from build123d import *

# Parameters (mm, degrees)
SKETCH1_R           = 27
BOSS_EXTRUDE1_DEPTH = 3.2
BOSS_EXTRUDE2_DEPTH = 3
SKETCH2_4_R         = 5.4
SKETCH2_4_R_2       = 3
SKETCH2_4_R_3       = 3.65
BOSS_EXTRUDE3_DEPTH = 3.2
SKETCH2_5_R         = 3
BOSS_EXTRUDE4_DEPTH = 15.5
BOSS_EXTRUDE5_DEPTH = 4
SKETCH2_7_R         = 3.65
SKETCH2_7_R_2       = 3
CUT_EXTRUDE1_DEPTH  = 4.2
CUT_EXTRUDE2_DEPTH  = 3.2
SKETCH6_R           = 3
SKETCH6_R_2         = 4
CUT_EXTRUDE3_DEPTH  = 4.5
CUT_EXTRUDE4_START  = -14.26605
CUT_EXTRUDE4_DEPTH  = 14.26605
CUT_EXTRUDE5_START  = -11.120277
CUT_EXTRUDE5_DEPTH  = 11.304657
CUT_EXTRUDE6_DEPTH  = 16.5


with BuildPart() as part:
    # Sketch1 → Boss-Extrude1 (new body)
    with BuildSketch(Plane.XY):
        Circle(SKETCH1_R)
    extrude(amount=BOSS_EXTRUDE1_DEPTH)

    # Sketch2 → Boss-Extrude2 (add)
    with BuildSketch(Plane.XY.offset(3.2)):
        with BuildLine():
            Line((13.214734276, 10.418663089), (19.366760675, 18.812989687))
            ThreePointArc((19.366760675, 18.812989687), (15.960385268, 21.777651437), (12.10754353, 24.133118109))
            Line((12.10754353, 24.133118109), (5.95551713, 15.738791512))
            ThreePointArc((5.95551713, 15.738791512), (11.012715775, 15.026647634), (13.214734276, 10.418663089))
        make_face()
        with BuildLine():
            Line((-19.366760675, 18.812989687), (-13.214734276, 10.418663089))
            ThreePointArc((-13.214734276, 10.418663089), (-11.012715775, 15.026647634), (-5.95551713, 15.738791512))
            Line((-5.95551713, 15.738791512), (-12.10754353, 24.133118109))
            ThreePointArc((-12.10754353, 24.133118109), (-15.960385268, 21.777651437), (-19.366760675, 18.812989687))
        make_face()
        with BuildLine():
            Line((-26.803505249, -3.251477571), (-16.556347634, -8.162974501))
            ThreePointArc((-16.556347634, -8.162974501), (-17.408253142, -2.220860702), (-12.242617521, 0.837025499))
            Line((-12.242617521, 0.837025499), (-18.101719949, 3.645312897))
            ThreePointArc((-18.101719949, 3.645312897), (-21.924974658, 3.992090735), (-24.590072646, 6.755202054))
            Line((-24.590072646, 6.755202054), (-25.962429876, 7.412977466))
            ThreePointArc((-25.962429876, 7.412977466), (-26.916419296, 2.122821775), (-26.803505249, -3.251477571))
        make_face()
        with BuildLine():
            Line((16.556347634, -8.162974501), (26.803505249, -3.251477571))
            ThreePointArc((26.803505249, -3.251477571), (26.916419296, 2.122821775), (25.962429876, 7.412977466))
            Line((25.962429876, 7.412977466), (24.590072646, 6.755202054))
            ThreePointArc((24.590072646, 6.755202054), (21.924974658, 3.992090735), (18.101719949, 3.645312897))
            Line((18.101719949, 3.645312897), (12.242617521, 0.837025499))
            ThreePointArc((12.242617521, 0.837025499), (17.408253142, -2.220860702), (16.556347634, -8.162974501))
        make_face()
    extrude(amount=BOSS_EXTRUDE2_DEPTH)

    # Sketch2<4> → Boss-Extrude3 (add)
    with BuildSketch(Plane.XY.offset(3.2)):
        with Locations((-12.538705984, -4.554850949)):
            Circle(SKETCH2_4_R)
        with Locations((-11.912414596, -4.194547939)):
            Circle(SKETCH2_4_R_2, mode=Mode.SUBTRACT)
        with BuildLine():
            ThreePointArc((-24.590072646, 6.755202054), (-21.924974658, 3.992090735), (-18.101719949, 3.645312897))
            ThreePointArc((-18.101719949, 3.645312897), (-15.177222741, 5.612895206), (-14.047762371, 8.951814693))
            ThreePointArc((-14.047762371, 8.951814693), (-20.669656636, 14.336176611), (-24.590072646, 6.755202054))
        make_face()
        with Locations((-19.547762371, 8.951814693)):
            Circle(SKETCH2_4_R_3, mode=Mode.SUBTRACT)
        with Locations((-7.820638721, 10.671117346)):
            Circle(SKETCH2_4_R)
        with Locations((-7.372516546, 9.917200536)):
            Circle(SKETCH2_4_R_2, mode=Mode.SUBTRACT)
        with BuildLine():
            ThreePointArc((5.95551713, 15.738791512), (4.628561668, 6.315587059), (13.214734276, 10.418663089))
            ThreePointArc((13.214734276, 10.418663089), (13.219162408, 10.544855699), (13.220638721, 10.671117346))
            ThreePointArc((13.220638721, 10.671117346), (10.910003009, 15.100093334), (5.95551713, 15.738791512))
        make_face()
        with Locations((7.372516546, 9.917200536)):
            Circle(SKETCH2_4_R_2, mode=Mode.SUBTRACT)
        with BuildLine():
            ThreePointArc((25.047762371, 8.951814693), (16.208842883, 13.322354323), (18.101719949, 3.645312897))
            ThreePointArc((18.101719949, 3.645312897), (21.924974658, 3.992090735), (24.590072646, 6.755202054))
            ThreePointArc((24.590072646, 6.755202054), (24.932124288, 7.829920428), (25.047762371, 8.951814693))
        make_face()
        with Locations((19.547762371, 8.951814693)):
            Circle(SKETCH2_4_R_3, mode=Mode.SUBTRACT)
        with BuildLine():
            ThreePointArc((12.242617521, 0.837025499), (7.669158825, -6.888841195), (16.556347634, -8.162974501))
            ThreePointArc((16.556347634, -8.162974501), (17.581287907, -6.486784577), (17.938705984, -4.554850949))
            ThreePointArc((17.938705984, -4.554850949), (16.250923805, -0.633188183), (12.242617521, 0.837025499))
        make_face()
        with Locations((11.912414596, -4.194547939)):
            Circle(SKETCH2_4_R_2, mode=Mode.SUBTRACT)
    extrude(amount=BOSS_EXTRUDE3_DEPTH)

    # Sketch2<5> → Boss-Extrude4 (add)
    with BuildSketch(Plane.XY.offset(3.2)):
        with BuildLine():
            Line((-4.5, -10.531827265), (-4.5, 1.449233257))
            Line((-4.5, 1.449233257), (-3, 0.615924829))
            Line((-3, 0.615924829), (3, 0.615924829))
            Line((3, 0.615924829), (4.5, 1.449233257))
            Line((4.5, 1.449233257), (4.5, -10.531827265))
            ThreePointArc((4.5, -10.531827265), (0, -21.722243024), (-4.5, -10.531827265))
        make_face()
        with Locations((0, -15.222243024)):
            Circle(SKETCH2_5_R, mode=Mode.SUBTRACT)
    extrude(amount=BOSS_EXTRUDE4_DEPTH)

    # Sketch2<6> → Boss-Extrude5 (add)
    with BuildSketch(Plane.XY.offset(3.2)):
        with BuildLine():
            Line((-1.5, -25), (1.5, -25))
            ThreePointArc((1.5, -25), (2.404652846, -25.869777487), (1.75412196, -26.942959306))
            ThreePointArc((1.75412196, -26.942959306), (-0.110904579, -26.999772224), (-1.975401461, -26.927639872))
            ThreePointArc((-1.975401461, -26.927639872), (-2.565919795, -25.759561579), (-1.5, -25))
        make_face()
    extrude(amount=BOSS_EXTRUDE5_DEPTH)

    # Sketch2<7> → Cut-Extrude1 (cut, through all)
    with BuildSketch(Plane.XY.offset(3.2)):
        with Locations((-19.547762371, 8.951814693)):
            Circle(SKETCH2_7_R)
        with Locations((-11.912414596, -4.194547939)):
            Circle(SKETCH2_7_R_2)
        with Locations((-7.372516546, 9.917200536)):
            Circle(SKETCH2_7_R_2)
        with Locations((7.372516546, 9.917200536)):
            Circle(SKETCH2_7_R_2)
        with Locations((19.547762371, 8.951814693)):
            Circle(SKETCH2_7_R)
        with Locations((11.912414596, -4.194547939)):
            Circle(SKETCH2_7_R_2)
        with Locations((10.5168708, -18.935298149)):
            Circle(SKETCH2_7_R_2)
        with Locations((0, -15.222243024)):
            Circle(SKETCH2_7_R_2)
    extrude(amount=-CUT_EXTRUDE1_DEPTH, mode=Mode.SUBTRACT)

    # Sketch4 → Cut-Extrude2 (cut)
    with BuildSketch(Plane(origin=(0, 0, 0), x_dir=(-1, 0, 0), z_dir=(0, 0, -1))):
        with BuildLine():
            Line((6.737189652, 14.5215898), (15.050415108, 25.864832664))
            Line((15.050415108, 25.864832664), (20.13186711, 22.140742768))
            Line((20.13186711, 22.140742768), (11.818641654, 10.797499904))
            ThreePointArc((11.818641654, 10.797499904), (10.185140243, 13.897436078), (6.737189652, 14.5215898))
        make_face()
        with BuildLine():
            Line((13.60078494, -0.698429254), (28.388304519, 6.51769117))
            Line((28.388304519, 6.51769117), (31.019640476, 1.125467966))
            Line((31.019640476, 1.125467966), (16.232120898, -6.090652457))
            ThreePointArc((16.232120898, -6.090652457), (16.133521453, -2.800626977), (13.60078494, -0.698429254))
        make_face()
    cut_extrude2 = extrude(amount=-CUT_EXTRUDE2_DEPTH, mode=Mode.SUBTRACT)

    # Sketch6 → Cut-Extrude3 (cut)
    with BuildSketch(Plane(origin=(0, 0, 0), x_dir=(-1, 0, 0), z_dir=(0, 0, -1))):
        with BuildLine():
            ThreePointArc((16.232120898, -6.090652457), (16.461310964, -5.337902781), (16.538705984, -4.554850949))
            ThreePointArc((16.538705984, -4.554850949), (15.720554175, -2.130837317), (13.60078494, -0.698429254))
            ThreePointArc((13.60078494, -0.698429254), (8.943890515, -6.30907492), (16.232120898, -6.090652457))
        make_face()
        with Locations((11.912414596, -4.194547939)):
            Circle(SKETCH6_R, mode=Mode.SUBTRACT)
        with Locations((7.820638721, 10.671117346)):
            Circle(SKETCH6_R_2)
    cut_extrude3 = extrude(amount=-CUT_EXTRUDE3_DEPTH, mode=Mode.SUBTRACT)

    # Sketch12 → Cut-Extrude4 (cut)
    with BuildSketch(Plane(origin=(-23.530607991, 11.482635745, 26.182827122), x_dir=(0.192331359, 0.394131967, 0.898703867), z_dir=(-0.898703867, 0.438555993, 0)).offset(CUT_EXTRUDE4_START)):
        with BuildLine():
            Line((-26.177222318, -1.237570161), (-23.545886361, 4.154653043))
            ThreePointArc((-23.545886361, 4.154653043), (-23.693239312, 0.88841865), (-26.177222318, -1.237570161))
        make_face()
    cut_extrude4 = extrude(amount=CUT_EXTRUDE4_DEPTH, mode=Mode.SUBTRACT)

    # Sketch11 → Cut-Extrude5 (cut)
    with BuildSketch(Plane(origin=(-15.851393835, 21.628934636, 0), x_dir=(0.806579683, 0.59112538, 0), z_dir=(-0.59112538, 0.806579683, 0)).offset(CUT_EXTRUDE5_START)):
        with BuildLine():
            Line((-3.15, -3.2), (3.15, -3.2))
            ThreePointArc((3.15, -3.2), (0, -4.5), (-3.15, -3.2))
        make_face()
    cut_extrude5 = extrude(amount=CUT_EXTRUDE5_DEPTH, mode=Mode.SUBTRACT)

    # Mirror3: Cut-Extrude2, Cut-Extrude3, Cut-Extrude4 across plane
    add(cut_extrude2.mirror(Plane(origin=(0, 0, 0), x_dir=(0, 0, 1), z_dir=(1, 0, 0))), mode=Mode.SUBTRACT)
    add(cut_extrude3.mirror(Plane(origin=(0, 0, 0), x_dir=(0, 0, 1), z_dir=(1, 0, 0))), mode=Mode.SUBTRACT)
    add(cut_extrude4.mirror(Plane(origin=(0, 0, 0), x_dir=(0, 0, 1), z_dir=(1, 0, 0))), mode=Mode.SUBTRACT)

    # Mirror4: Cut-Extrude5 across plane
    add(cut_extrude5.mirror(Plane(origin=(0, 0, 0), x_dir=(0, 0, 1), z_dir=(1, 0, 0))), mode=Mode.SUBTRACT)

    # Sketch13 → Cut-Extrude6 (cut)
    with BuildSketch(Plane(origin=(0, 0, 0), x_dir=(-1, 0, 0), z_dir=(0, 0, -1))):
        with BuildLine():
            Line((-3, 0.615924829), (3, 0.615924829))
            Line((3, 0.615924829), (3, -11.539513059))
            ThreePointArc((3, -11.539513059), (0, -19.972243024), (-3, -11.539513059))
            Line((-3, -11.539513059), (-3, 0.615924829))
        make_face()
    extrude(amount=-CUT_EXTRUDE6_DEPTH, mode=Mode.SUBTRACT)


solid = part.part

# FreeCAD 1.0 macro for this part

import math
import FreeCAD as App
import Part
import Sketcher
Q = App.Units.Quantity

doc = App.newDocument("Part")
body = doc.addObject("PartDesign::Body", "Body")

sketch1 = body.newObject("Sketcher::SketchObject", "Sketch")
sketch1.AttachmentSupport = (doc.getObject("XY_Plane"), [""])
sketch1.MapMode = "FlatFace"
sketch1.addGeometry(Part.Circle(App.Vector(0, 0, 0), App.Vector(0, 0, 1), 27), False)
sketch1.addConstraint(Sketcher.Constraint("Coincident", 0, 3, -1, 1))
sketch1.addConstraint(Sketcher.Constraint("Diameter", 0, Q("54 mm")))
pad1 = body.newObject("PartDesign::Pad", "Pad")
pad1.Profile = sketch1
pad1.Length = 3.2

sketch2 = body.newObject("Sketcher::SketchObject", "Sketch001")
sketch2.AttachmentSupport = (doc.getObject("XY_Plane"), [""])
sketch2.MapMode = "FlatFace"
sketch2.AttachmentOffset = App.Placement(App.Vector(0, 0, 3.2), App.Rotation())
sketch2.addGeometry(Part.LineSegment(App.Vector(13.2, 10.4, 0), App.Vector(19.4, 18.8, 0)), False)
sketch2.addGeometry(Part.ArcOfCircle(Part.Circle(App.Vector(0, 0, 0), App.Vector(0, 0, 1), 27), math.radians(44.17), math.radians(63.36)), False)
sketch2.addGeometry(Part.LineSegment(App.Vector(12.1, 24.1, 0), App.Vector(6, 15.7, 0)), False)
sketch2.addGeometry(Part.ArcOfCircle(Part.Circle(App.Vector(7.8, 10.7, 0), App.Vector(0, 0, 1), 5.4), math.radians(-3), math.radians(110)), False)
sketch2.addGeometry(Part.LineSegment(App.Vector(-19.4, 18.8, 0), App.Vector(-13.2, 10.4, 0)), False)
sketch2.addGeometry(Part.ArcOfCircle(Part.Circle(App.Vector(-7.8, 10.7, 0), App.Vector(0, 0, 1), 5.4), math.radians(70), math.radians(183)), False)
sketch2.addGeometry(Part.LineSegment(App.Vector(-6, 15.7, 0), App.Vector(-12.1, 24.1, 0)), False)
sketch2.addGeometry(Part.ArcOfCircle(Part.Circle(App.Vector(0, 0, 0), App.Vector(0, 0, 1), 27), math.radians(116.64), math.radians(135.83)), False)
sketch2.addGeometry(Part.LineSegment(App.Vector(-26.8, -3.3, 0), App.Vector(-16.6, -8.2, 0)), False)
sketch2.addGeometry(Part.ArcOfCircle(Part.Circle(App.Vector(-12.5, -4.6, 0), App.Vector(0, 0, 1), 5.4), math.radians(87), math.radians(222)), False)
sketch2.addGeometry(Part.LineSegment(App.Vector(-12.2, 0.8, 0), App.Vector(-18.1, 3.6, 0)), False)
sketch2.addGeometry(Part.ArcOfCircle(Part.Circle(App.Vector(-19.5, 9, 0), App.Vector(0, 0, 1), 5.5), math.radians(-156), math.radians(-75)), False)
sketch2.addGeometry(Part.LineSegment(App.Vector(-24.6, 6.8, 0), App.Vector(-26, 7.4, 0)), False)
sketch2.addGeometry(Part.ArcOfCircle(Part.Circle(App.Vector(0, 0, 0), App.Vector(0, 0, 1), 27), math.radians(164), math.radians(187)), False)
sketch2.addGeometry(Part.LineSegment(App.Vector(16.6, -8.2, 0), App.Vector(26.8, -3.3, 0)), False)
sketch2.addGeometry(Part.ArcOfCircle(Part.Circle(App.Vector(0, 0, 0), App.Vector(0, 0, 1), 27), math.radians(-7), math.radians(16)), False)
sketch2.addGeometry(Part.LineSegment(App.Vector(26, 7.4, 0), App.Vector(24.6, 6.8, 0)), False)
sketch2.addGeometry(Part.ArcOfCircle(Part.Circle(App.Vector(19.5, 9, 0), App.Vector(0, 0, 1), 5.5), math.radians(-105), math.radians(-24)), False)
sketch2.addGeometry(Part.LineSegment(App.Vector(18.1, 3.6, 0), App.Vector(12.2, 0.8, 0)), False)
sketch2.addGeometry(Part.ArcOfCircle(Part.Circle(App.Vector(12.5, -4.6, 0), App.Vector(0, 0, 1), 5.4), math.radians(-42), math.radians(93)), False)
sketch2.addConstraint(Sketcher.Constraint("Coincident", 0, 2, 1, 1))
sketch2.addConstraint(Sketcher.Constraint("Coincident", 1, 2, 2, 1))
sketch2.addConstraint(Sketcher.Constraint("Coincident", 2, 2, 3, 2))
sketch2.addConstraint(Sketcher.Constraint("Coincident", 3, 1, 0, 1))
sketch2.addConstraint(Sketcher.Constraint("Coincident", 4, 2, 5, 2))
sketch2.addConstraint(Sketcher.Constraint("Coincident", 5, 1, 6, 1))
sketch2.addConstraint(Sketcher.Constraint("Coincident", 6, 2, 7, 1))
sketch2.addConstraint(Sketcher.Constraint("Coincident", 7, 2, 4, 1))
sketch2.addConstraint(Sketcher.Constraint("Coincident", 8, 2, 9, 2))
sketch2.addConstraint(Sketcher.Constraint("Coincident", 9, 1, 10, 1))
sketch2.addConstraint(Sketcher.Constraint("Coincident", 10, 2, 11, 2))
sketch2.addConstraint(Sketcher.Constraint("Coincident", 11, 1, 12, 1))
sketch2.addConstraint(Sketcher.Constraint("Coincident", 12, 2, 13, 1))
sketch2.addConstraint(Sketcher.Constraint("Coincident", 13, 2, 8, 1))
sketch2.addConstraint(Sketcher.Constraint("Coincident", 14, 2, 15, 1))
sketch2.addConstraint(Sketcher.Constraint("Coincident", 15, 2, 16, 1))
sketch2.addConstraint(Sketcher.Constraint("Coincident", 16, 2, 17, 2))
sketch2.addConstraint(Sketcher.Constraint("Coincident", 17, 1, 18, 1))
sketch2.addConstraint(Sketcher.Constraint("Coincident", 18, 2, 19, 2))
sketch2.addConstraint(Sketcher.Constraint("Coincident", 19, 1, 14, 1))
sketch2.addConstraint(Sketcher.Constraint("Coincident", 1, 3, -1, 1))
sketch2.addConstraint(Sketcher.Constraint("Coincident", 7, 3, -1, 1))
sketch2.addConstraint(Sketcher.Constraint("Coincident", 13, 3, -1, 1))
sketch2.addConstraint(Sketcher.Constraint("Coincident", 15, 3, -1, 1))
sketch2.addConstraint(Sketcher.Constraint("Equal", 3, 5))
sketch2.addConstraint(Sketcher.Constraint("Equal", 1, 7))
sketch2.addConstraint(Sketcher.Constraint("Equal", 5, 9))
sketch2.addConstraint(Sketcher.Constraint("Equal", 7, 13))
sketch2.addConstraint(Sketcher.Constraint("Equal", 13, 15))
sketch2.addConstraint(Sketcher.Constraint("Equal", 11, 17))
sketch2.addConstraint(Sketcher.Constraint("Equal", 9, 19))
sketch2.addConstraint(Sketcher.Constraint("Symmetric", 3, 3, 5, 3, -2))
sketch2.addConstraint(Sketcher.Constraint("Symmetric", 11, 3, 17, 3, -2))
sketch2.addConstraint(Sketcher.Constraint("Symmetric", 9, 3, 19, 3, -2))
sketch2.addConstraint(Sketcher.Constraint("Parallel", 0, 2))
sketch2.addConstraint(Sketcher.Constraint("Parallel", 4, 6))
sketch2.addConstraint(Sketcher.Constraint("Parallel", 8, 10))
sketch2.addConstraint(Sketcher.Constraint("Parallel", 10, 12))
sketch2.addConstraint(Sketcher.Constraint("Parallel", 14, 16))
sketch2.addConstraint(Sketcher.Constraint("Parallel", 16, 18))
sketch2.addConstraint(Sketcher.Constraint("Horizontal", 3, 1, 4, 2))
sketch2.addConstraint(Sketcher.Constraint("Horizontal", 2, 2, 5, 1))
sketch2.addConstraint(Sketcher.Constraint("Horizontal", 1, 2, 6, 2))
sketch2.addConstraint(Sketcher.Constraint("Horizontal", 13, 2, 14, 2))
sketch2.addConstraint(Sketcher.Constraint("Horizontal", 12, 2, 15, 2))
sketch2.addConstraint(Sketcher.Constraint("Horizontal", 11, 1, 16, 2))
sketch2.addConstraint(Sketcher.Constraint("Horizontal", 10, 2, 17, 1))
sketch2.addConstraint(Sketcher.Constraint("Equal", 0, 2))
sketch2.addConstraint(Sketcher.Constraint("Radius", 1, Q("27 mm")))
sketch2.addConstraint(Sketcher.Constraint("Radius", 3, Q("5.4 mm")))
sketch2.addConstraint(Sketcher.Constraint("Radius", 11, Q("5.5 mm")))
sketch2.addConstraint(Sketcher.Constraint("DistanceY", 8, 2, 9, 1, Q("9 mm")))
sketch2.addConstraint(Sketcher.Constraint("DistanceX", 0, 2, 17, 3, Q("0.181002 mm")))
sketch2.addConstraint(Sketcher.Constraint("DistanceY", 3, 3, 1, 2, Q("13.462001 mm")))
sketch2.addConstraint(Sketcher.Constraint("DistanceX", 11, 3, 3, 3, Q("27.368401 mm")))
sketch2.addConstraint(Sketcher.Constraint("DistanceY", 2, 2, 0, 2, Q("3.074198 mm")))
sketch2.addConstraint(Sketcher.Constraint("DistanceY", 10, 2, 11, 3, Q("5.306502 mm")))
sketch2.addConstraint(Sketcher.Constraint("DistanceX", 19, 3, 14, 2, Q("14.264799 mm")))
sketch2.addConstraint(Sketcher.Constraint("Distance", 10, Q("6.49735 mm")))
sketch2.addConstraint(Sketcher.Constraint("Distance", 12, Q("1.521852 mm")))
sketch2.addConstraint(Sketcher.Constraint("DistanceX", -1, 1, 3, 3, Q("7.820639 mm")))
sketch2.addConstraint(Sketcher.Constraint("DistanceY", 9, 3, -1, 1, Q("4.554851 mm")))
sketch2.addConstraint(Sketcher.Constraint("DistanceX", 12, 2, -1, 1, Q("25.96243 mm")))
pad2 = body.newObject("PartDesign::Pad", "Pad001")
pad2.Profile = sketch2
pad2.Length = 3

sketch3 = body.newObject("Sketcher::SketchObject", "Sketch002")
sketch3.AttachmentSupport = (doc.getObject("XY_Plane"), [""])
sketch3.MapMode = "FlatFace"
sketch3.AttachmentOffset = App.Placement(App.Vector(0, 0, 3.2), App.Rotation())
sketch3.addGeometry(Part.Circle(App.Vector(-12.54, -4.55, 0), App.Vector(0, 0, 1), 5.4), False)
sketch3.addGeometry(Part.Circle(App.Vector(-11.91, -4.19, 0), App.Vector(0, 0, 1), 3), False)
sketch3.addGeometry(Part.ArcOfCircle(Part.Circle(App.Vector(-19.55, 8.95, 0), App.Vector(0, 0, 1), 5.5), math.radians(-156), math.radians(-75)), False)
sketch3.addGeometry(Part.ArcOfCircle(Part.Circle(App.Vector(-19.55, 8.95, 0), App.Vector(0, 0, 1), 5.5), math.radians(-75), math.radians(0)), False)
sketch3.addGeometry(Part.ArcOfCircle(Part.Circle(App.Vector(-19.55, 8.95, 0), App.Vector(0, 0, 1), 5.5), math.radians(0), math.radians(204)), False)
sketch3.addGeometry(Part.Circle(App.Vector(-19.55, 8.95, 0), App.Vector(0, 0, 1), 3.65), False)
sketch3.addGeometry(Part.Circle(App.Vector(-7.82, 10.67, 0), App.Vector(0, 0, 1), 5.4), False)
sketch3.addGeometry(Part.Circle(App.Vector(-7.37, 9.92, 0), App.Vector(0, 0, 1), 3), False)
sketch3.addGeometry(Part.ArcOfCircle(Part.Circle(App.Vector(7.82, 10.67, 0), App.Vector(0, 0, 1), 5.4), math.radians(110), math.radians(357)), False)
sketch3.addGeometry(Part.ArcOfCircle(Part.Circle(App.Vector(7.82, 10.67, 0), App.Vector(0, 0, 1), 5.4), math.radians(-2.68), math.radians(0)), False)
sketch3.addGeometry(Part.ArcOfCircle(Part.Circle(App.Vector(7.82, 10.67, 0), App.Vector(0, 0, 1), 5.4), math.radians(0), math.radians(110)), False)
sketch3.addGeometry(Part.Circle(App.Vector(7.37, 9.92, 0), App.Vector(0, 0, 1), 3), False)
sketch3.addGeometry(Part.ArcOfCircle(Part.Circle(App.Vector(19.55, 8.95, 0), App.Vector(0, 0, 1), 5.5), math.radians(0), math.radians(255)), False)
sketch3.addGeometry(Part.ArcOfCircle(Part.Circle(App.Vector(19.55, 8.95, 0), App.Vector(0, 0, 1), 5.5), math.radians(-105), math.radians(-24)), False)
sketch3.addGeometry(Part.ArcOfCircle(Part.Circle(App.Vector(19.55, 8.95, 0), App.Vector(0, 0, 1), 5.5), math.radians(-24), math.radians(0)), False)
sketch3.addGeometry(Part.Circle(App.Vector(19.55, 8.95, 0), App.Vector(0, 0, 1), 3.65), False)
sketch3.addGeometry(Part.ArcOfCircle(Part.Circle(App.Vector(12.54, -4.55, 0), App.Vector(0, 0, 1), 5.4), math.radians(93), math.radians(318)), False)
sketch3.addGeometry(Part.ArcOfCircle(Part.Circle(App.Vector(12.54, -4.55, 0), App.Vector(0, 0, 1), 5.4), math.radians(-42), math.radians(0)), False)
sketch3.addGeometry(Part.ArcOfCircle(Part.Circle(App.Vector(12.54, -4.55, 0), App.Vector(0, 0, 1), 5.4), math.radians(0), math.radians(93)), False)
sketch3.addGeometry(Part.Circle(App.Vector(11.91, -4.19, 0), App.Vector(0, 0, 1), 3), False)
sketch3.addConstraint(Sketcher.Constraint("Tangent", 2, 2, 3, 1))
sketch3.addConstraint(Sketcher.Constraint("Tangent", 3, 2, 4, 1))
sketch3.addConstraint(Sketcher.Constraint("Tangent", 4, 2, 2, 1))
sketch3.addConstraint(Sketcher.Constraint("Tangent", 8, 2, 9, 1))
sketch3.addConstraint(Sketcher.Constraint("Tangent", 9, 2, 10, 1))
sketch3.addConstraint(Sketcher.Constraint("Tangent", 10, 2, 8, 1))
sketch3.addConstraint(Sketcher.Constraint("Tangent", 12, 2, 13, 1))
sketch3.addConstraint(Sketcher.Constraint("Tangent", 13, 2, 14, 1))
sketch3.addConstraint(Sketcher.Constraint("Tangent", 14, 2, 12, 1))
sketch3.addConstraint(Sketcher.Constraint("Tangent", 16, 2, 17, 1))
sketch3.addConstraint(Sketcher.Constraint("Tangent", 17, 2, 18, 1))
sketch3.addConstraint(Sketcher.Constraint("Tangent", 18, 2, 16, 1))
sketch3.addConstraint(Sketcher.Constraint("Coincident", 5, 3, 2, 3))
sketch3.addConstraint(Sketcher.Constraint("Coincident", 15, 3, 12, 3))
sketch3.addConstraint(Sketcher.Constraint("Equal", 0, 6))
sketch3.addConstraint(Sketcher.Constraint("Equal", 1, 7))
sketch3.addConstraint(Sketcher.Constraint("Equal", 6, 8))
sketch3.addConstraint(Sketcher.Constraint("Equal", 7, 11))
sketch3.addConstraint(Sketcher.Constraint("Equal", 4, 12))
sketch3.addConstraint(Sketcher.Constraint("Equal", 5, 15))
sketch3.addConstraint(Sketcher.Constraint("Equal", 10, 16))
sketch3.addConstraint(Sketcher.Constraint("Equal", 11, 19))
sketch3.addConstraint(Sketcher.Constraint("Symmetric", 6, 3, 8, 3, -2))
sketch3.addConstraint(Sketcher.Constraint("Symmetric", 7, 3, 11, 3, -2))
sketch3.addConstraint(Sketcher.Constraint("Symmetric", 2, 3, 12, 3, -2))
sketch3.addConstraint(Sketcher.Constraint("Symmetric", 0, 3, 16, 3, -2))
sketch3.addConstraint(Sketcher.Constraint("Symmetric", 1, 3, 19, 3, -2))
sketch3.addConstraint(Sketcher.Constraint("Horizontal", 15, 3, 3, 2))
sketch3.addConstraint(Sketcher.Constraint("Horizontal", 10, 3, 9, 2))
sketch3.addConstraint(Sketcher.Constraint("Horizontal", 2, 2, 12, 2))
sketch3.addConstraint(Sketcher.Constraint("Horizontal", 4, 2, 13, 2))
sketch3.addConstraint(Sketcher.Constraint("Horizontal", 3, 2, 14, 2))
sketch3.addConstraint(Sketcher.Constraint("Horizontal", 18, 3, 17, 2))
sketch3.addConstraint(Sketcher.Constraint("Diameter", 1, Q("6 mm")))
sketch3.addConstraint(Sketcher.Constraint("Diameter", 0, Q("10.8 mm")))
sketch3.addConstraint(Sketcher.Constraint("Diameter", 5, Q("7.3 mm")))
sketch3.addConstraint(Sketcher.Constraint("Radius", 2, Q("5.5 mm")))
sketch3.addConstraint(Sketcher.Constraint("DistanceX", 10, 2, 11, 3, Q("1.416999 mm")))
sketch3.addConstraint(Sketcher.Constraint("DistanceY", -1, 1, 7, 3, Q("9.917201 mm")))
sketch3.addConstraint(Sketcher.Constraint("DistanceX", 4, 3, 8, 3, Q("27.368401 mm")))
sketch3.addConstraint(Sketcher.Constraint("DistanceX", 11, 3, 19, 3, Q("4.539898 mm")))
sketch3.addConstraint(Sketcher.Constraint("DistanceY", 2, 2, 2, 3, Q("5.306502 mm")))
sketch3.addConstraint(Sketcher.Constraint("DistanceY", 0, 3, -1, 1, Q("4.554851 mm")))
sketch3.addConstraint(Sketcher.Constraint("DistanceX", 6, 3, -1, 1, Q("7.820639 mm")))
sketch3.addConstraint(Sketcher.Constraint("DistanceY", -1, 1, 10, 2, Q("15.738792 mm")))
sketch3.addConstraint(Sketcher.Constraint("DistanceX", 0, 3, 1, 3, Q("0.626291 mm")))
sketch3.addConstraint(Sketcher.Constraint("DistanceY", 0, 3, 8, 3, Q("15.225968 mm")))
sketch3.addConstraint(Sketcher.Constraint("DistanceY", 19, 3, 11, 3, Q("14.111748 mm")))
sketch3.addConstraint(Sketcher.Constraint("DistanceX", 4, 2, 2, 3, Q("5.04231 mm")))
sketch3.addConstraint(Sketcher.Constraint("DistanceX", 8, 2, 14, 3, Q("6.333028 mm")))
sketch3.addConstraint(Sketcher.Constraint("DistanceY", 14, 3, 8, 2, Q("1.466848 mm")))
sketch3.addConstraint(Sketcher.Constraint("DistanceX", 16, 3, 16, 2, Q("4.017642 mm")))
sketch3.addConstraint(Sketcher.Constraint("DistanceX", 18, 2, 17, 3, Q("0.296088 mm")))
pad3 = body.newObject("PartDesign::Pad", "Pad002")
pad3.Profile = sketch3
pad3.Length = 3.2

sketch4 = body.newObject("Sketcher::SketchObject", "Sketch003")
sketch4.AttachmentSupport = (doc.getObject("XY_Plane"), [""])
sketch4.MapMode = "FlatFace"
sketch4.AttachmentOffset = App.Placement(App.Vector(0, 0, 3.2), App.Rotation())
sketch4.addGeometry(Part.LineSegment(App.Vector(-4.5, 1.4, 0), App.Vector(-4.5, -10.5, 0)), False)
sketch4.addGeometry(Part.ArcOfCircle(Part.Circle(App.Vector(0, -15.2, 0), App.Vector(0, 0, 1), 6.5), math.radians(134), math.radians(406)), False)
sketch4.addGeometry(Part.LineSegment(App.Vector(4.5, -10.5, 0), App.Vector(4.5, 1.4, 0)), False)
sketch4.addGeometry(Part.LineSegment(App.Vector(4.5, 1.4, 0), App.Vector(3, 0.6, 0)), False)
sketch4.addGeometry(Part.LineSegment(App.Vector(3, 0.6, 0), App.Vector(-3, 0.6, 0)), False)
sketch4.addGeometry(Part.LineSegment(App.Vector(-3, 0.6, 0), App.Vector(-4.5, 1.4, 0)), False)
sketch4.addGeometry(Part.Circle(App.Vector(0, -15.2, 0), App.Vector(0, 0, 1), 3), False)
sketch4.addConstraint(Sketcher.Constraint("Coincident", 0, 2, 1, 1))
sketch4.addConstraint(Sketcher.Constraint("Coincident", 1, 2, 2, 1))
sketch4.addConstraint(Sketcher.Constraint("Coincident", 2, 2, 3, 1))
sketch4.addConstraint(Sketcher.Constraint("Coincident", 3, 2, 4, 1))
sketch4.addConstraint(Sketcher.Constraint("Coincident", 4, 2, 5, 1))
sketch4.addConstraint(Sketcher.Constraint("Coincident", 5, 2, 0, 1))
sketch4.addConstraint(Sketcher.Constraint("Vertical", 0))
sketch4.addConstraint(Sketcher.Constraint("Vertical", 2))
sketch4.addConstraint(Sketcher.Constraint("Horizontal", 4))
sketch4.addConstraint(Sketcher.Constraint("Coincident", 6, 3, 1, 3))
sketch4.addConstraint(Sketcher.Constraint("Symmetric", 0, 2, 1, 2, -2))
sketch4.addConstraint(Sketcher.Constraint("Horizontal", 2, 2, 5, 2))
sketch4.addConstraint(Sketcher.Constraint("Equal", 3, 5))
sketch4.addConstraint(Sketcher.Constraint("Diameter", 6, Q("6 mm")))
sketch4.addConstraint(Sketcher.Constraint("Radius", 1, Q("6.5 mm")))
sketch4.addConstraint(Sketcher.Constraint("DistanceX", 4, 2, 4, 1, Q("6 mm")))
sketch4.addConstraint(Sketcher.Constraint("DistanceX", 0, 2, 1, 2, Q("9 mm")))
sketch4.addConstraint(Sketcher.Constraint("DistanceY", 0, 2, 0, 1, Q("11.981061 mm")))
sketch4.addConstraint(Sketcher.Constraint("DistanceY", 3, 2, 2, 2, Q("0.833308 mm")))
sketch4.addConstraint(Sketcher.Constraint("DistanceY", 1, 3, -1, 1, Q("15.222243 mm")))
pad4 = body.newObject("PartDesign::Pad", "Pad003")
pad4.Profile = sketch4
pad4.Length = 15.5

sketch5 = body.newObject("Sketcher::SketchObject", "Sketch004")
sketch5.AttachmentSupport = (doc.getObject("XY_Plane"), [""])
sketch5.MapMode = "FlatFace"
sketch5.AttachmentOffset = App.Placement(App.Vector(0, 0, 3.2), App.Rotation())
sketch5.addGeometry(Part.LineSegment(App.Vector(1.5, -25, 0), App.Vector(-1.5, -25, 0)), False)
sketch5.addGeometry(Part.ArcOfCircle(Part.Circle(App.Vector(-1.6, -26, 0), App.Vector(0, 0, 1), 1), math.radians(85), math.radians(247)), False)
sketch5.addGeometry(Part.ArcOfCircle(Part.Circle(App.Vector(0, 0, 0), App.Vector(0, 0, 1), 27), math.radians(-94.2), math.radians(-86.28)), False)
sketch5.addGeometry(Part.ArcOfCircle(Part.Circle(App.Vector(1.4, -26, 0), App.Vector(0, 0, 1), 1), math.radians(-70), math.radians(85)), False)
sketch5.addConstraint(Sketcher.Constraint("Coincident", 0, 2, 1, 1))
sketch5.addConstraint(Sketcher.Constraint("Coincident", 1, 2, 2, 1))
sketch5.addConstraint(Sketcher.Constraint("Coincident", 2, 2, 3, 1))
sketch5.addConstraint(Sketcher.Constraint("Coincident", 3, 2, 0, 1))
sketch5.addConstraint(Sketcher.Constraint("Horizontal", 0))
sketch5.addConstraint(Sketcher.Constraint("Coincident", 2, 3, -1, 1))
sketch5.addConstraint(Sketcher.Constraint("Equal", 1, 3))
sketch5.addConstraint(Sketcher.Constraint("Horizontal", 1, 3, 3, 3))
sketch5.addConstraint(Sketcher.Constraint("Radius", 2, Q("27 mm")))
sketch5.addConstraint(Sketcher.Constraint("DistanceX", 0, 2, 0, 1, Q("3 mm")))
sketch5.addConstraint(Sketcher.Constraint("DistanceY", 1, 3, -1, 1, Q("26 mm")))
sketch5.addConstraint(Sketcher.Constraint("DistanceY", 0, 2, -1, 1, Q("25 mm")))
sketch5.addConstraint(Sketcher.Constraint("DistanceX", 0, 2, -1, 1, Q("1.5 mm")))
sketch5.addConstraint(Sketcher.Constraint("Radius", 1, Q("1.004132 mm")))
pad5 = body.newObject("PartDesign::Pad", "Pad004")
pad5.Profile = sketch5
pad5.Length = 4

sketch6 = body.newObject("Sketcher::SketchObject", "Sketch005")
sketch6.AttachmentSupport = (doc.getObject("XY_Plane"), [""])
sketch6.MapMode = "FlatFace"
sketch6.AttachmentOffset = App.Placement(App.Vector(0, 0, 3.2), App.Rotation())
sketch6.addGeometry(Part.Circle(App.Vector(-19.5, 9, 0), App.Vector(0, 0, 1), 3.6), False)
sketch6.addGeometry(Part.Circle(App.Vector(-11.9, -4.2, 0), App.Vector(0, 0, 1), 3), False)
sketch6.addGeometry(Part.Circle(App.Vector(-7.4, 9.9, 0), App.Vector(0, 0, 1), 3), False)
sketch6.addGeometry(Part.Circle(App.Vector(7.4, 9.9, 0), App.Vector(0, 0, 1), 3), False)
sketch6.addGeometry(Part.Circle(App.Vector(19.5, 9, 0), App.Vector(0, 0, 1), 3.6), False)
sketch6.addGeometry(Part.Circle(App.Vector(11.9, -4.2, 0), App.Vector(0, 0, 1), 3), False)
sketch6.addGeometry(Part.Circle(App.Vector(10.5, -18.9, 0), App.Vector(0, 0, 1), 3), False)
sketch6.addGeometry(Part.Circle(App.Vector(0, -15.2, 0), App.Vector(0, 0, 1), 3), False)
sketch6.addConstraint(Sketcher.Constraint("Equal", 1, 2))
sketch6.addConstraint(Sketcher.Constraint("Equal", 2, 3))
sketch6.addConstraint(Sketcher.Constraint("Equal", 0, 4))
sketch6.addConstraint(Sketcher.Constraint("Equal", 3, 5))
sketch6.addConstraint(Sketcher.Constraint("Equal", 5, 6))
sketch6.addConstraint(Sketcher.Constraint("Equal", 6, 7))
sketch6.addConstraint(Sketcher.Constraint("Symmetric", 2, 3, 3, 3, -2))
sketch6.addConstraint(Sketcher.Constraint("Symmetric", 0, 3, 4, 3, -2))
sketch6.addConstraint(Sketcher.Constraint("Symmetric", 1, 3, 5, 3, -2))
sketch6.addConstraint(Sketcher.Constraint("PointOnObject", 7, 3, -2))
sketch6.addConstraint(Sketcher.Constraint("Diameter", 1, Q("6 mm")))
sketch6.addConstraint(Sketcher.Constraint("Diameter", 0, Q("7.3 mm")))
sketch6.addConstraint(Sketcher.Constraint("DistanceY", -1, 1, 2, 3, Q("9.917201 mm")))
sketch6.addConstraint(Sketcher.Constraint("DistanceY", 6, 3, -1, 1, Q("18.935298 mm")))
sketch6.addConstraint(Sketcher.Constraint("DistanceX", 1, 3, 2, 3, Q("4.539898 mm")))
sketch6.addConstraint(Sketcher.Constraint("DistanceX", -1, 1, 6, 3, Q("10.516871 mm")))
sketch6.addConstraint(Sketcher.Constraint("DistanceY", 1, 3, 2, 3, Q("14.111748 mm")))
sketch6.addConstraint(Sketcher.Constraint("DistanceX", 1, 3, 3, 3, Q("19.284931 mm")))
sketch6.addConstraint(Sketcher.Constraint("DistanceX", 0, 3, 3, 3, Q("26.920279 mm")))
sketch6.addConstraint(Sketcher.Constraint("DistanceY", -1, 1, 0, 3, Q("8.951815 mm")))
sketch6.addConstraint(Sketcher.Constraint("DistanceY", 7, 3, -1, 1, Q("15.222243 mm")))
pocket1 = body.newObject("PartDesign::Pocket", "Pocket")
pocket1.Profile = sketch6
pocket1.Type = "ThroughAll"

sketch7 = body.newObject("Sketcher::SketchObject", "Sketch006")
sketch7.AttachmentSupport = (doc.getObject("XY_Plane"), [""])
sketch7.MapMode = "FlatFace"
sketch7.addGeometry(Part.LineSegment(App.Vector(-15.1, 25.9, 0), App.Vector(-6.7, 14.5, 0)), False)
sketch7.addGeometry(Part.ArcOfCircle(Part.Circle(App.Vector(-7.8, 10.7, 0), App.Vector(0, 0, 1), 4), math.radians(74), math.radians(178)), False)
sketch7.addGeometry(Part.LineSegment(App.Vector(-11.8, 10.8, 0), App.Vector(-20.1, 22.1, 0)), False)
sketch7.addGeometry(Part.LineSegment(App.Vector(-20.1, 22.1, 0), App.Vector(-15.1, 25.9, 0)), False)
sketch7.addGeometry(Part.LineSegment(App.Vector(-28.4, 6.5, 0), App.Vector(-13.6, -0.7, 0)), False)
sketch7.addGeometry(Part.ArcOfCircle(Part.Circle(App.Vector(-12.5, -4.6, 0), App.Vector(0, 0, 1), 4), math.radians(105), math.radians(203)), False)
sketch7.addGeometry(Part.LineSegment(App.Vector(-16.2, -6.1, 0), App.Vector(-31, 1.1, 0)), False)
sketch7.addGeometry(Part.LineSegment(App.Vector(-31, 1.1, 0), App.Vector(-28.4, 6.5, 0)), False)
sketch7.addConstraint(Sketcher.Constraint("Coincident", 0, 2, 1, 1))
sketch7.addConstraint(Sketcher.Constraint("Coincident", 1, 2, 2, 1))
sketch7.addConstraint(Sketcher.Constraint("Coincident", 2, 2, 3, 1))
sketch7.addConstraint(Sketcher.Constraint("Coincident", 3, 2, 0, 1))
sketch7.addConstraint(Sketcher.Constraint("Coincident", 4, 2, 5, 1))
sketch7.addConstraint(Sketcher.Constraint("Coincident", 5, 2, 6, 1))
sketch7.addConstraint(Sketcher.Constraint("Coincident", 6, 2, 7, 1))
sketch7.addConstraint(Sketcher.Constraint("Coincident", 7, 2, 4, 1))
sketch7.addConstraint(Sketcher.Constraint("Equal", 1, 5))
sketch7.addConstraint(Sketcher.Constraint("Parallel", 0, 2))
sketch7.addConstraint(Sketcher.Constraint("Perpendicular", 2, 3))
sketch7.addConstraint(Sketcher.Constraint("Parallel", 4, 6))
sketch7.addConstraint(Sketcher.Constraint("Perpendicular", 6, 7))
sketch7.addConstraint(Sketcher.Constraint("Equal", 0, 2))
sketch7.addConstraint(Sketcher.Constraint("Equal", 4, 6))
sketch7.addConstraint(Sketcher.Constraint("Radius", 1, Q("4 mm")))
sketch7.addConstraint(Sketcher.Constraint("Distance", 7, Q("6 mm")))
sketch7.addConstraint(Sketcher.Constraint("Distance", 3, Q("6.3 mm")))
sketch7.addConstraint(Sketcher.Constraint("DistanceX", 6, 2, 1, 2, Q("19.200999 mm")))
sketch7.addConstraint(Sketcher.Constraint("DistanceY", -1, 1, 1, 2, Q("10.7975 mm")))
sketch7.addConstraint(Sketcher.Constraint("DistanceY", 5, 2, 5, 3, Q("1.535802 mm")))
sketch7.addConstraint(Sketcher.Constraint("DistanceX", 1, 3, -1, 1, Q("7.820639 mm")))
sketch7.addConstraint(Sketcher.Constraint("DistanceY", 5, 3, -1, 1, Q("4.554851 mm")))
sketch7.addConstraint(Sketcher.Constraint("DistanceX", 0, 2, -1, 1, Q("6.73719 mm")))
sketch7.addConstraint(Sketcher.Constraint("DistanceX", 5, 2, -1, 1, Q("16.232121 mm")))
sketch7.addConstraint(Sketcher.Constraint("DistanceX", 2, 2, 1, 3, Q("12.311228 mm")))
pocket2 = body.newObject("PartDesign::Pocket", "Pocket001")
pocket2.Profile = sketch7
pocket2.Length = 3.2
pocket2.Reversed = True

sketch8 = body.newObject("Sketcher::SketchObject", "Sketch007")
sketch8.AttachmentSupport = (doc.getObject("XY_Plane"), [""])
sketch8.MapMode = "FlatFace"
sketch8.addGeometry(Part.ArcOfCircle(Part.Circle(App.Vector(-12.5, -4.6, 0), App.Vector(0, 0, 1), 4), math.radians(180), math.radians(203)), False)
sketch8.addGeometry(Part.ArcOfCircle(Part.Circle(App.Vector(-12.5, -4.6, 0), App.Vector(0, 0, 1), 4), math.radians(105), math.radians(180)), False)
sketch8.addGeometry(Part.ArcOfCircle(Part.Circle(App.Vector(-12.5, -4.6, 0), App.Vector(0, 0, 1), 4), math.radians(-157), math.radians(105)), False)
sketch8.addGeometry(Part.Circle(App.Vector(-11.9, -4.2, 0), App.Vector(0, 0, 1), 3), False)
sketch8.addGeometry(Part.Circle(App.Vector(-7.8, 10.7, 0), App.Vector(0, 0, 1), 4), False)
sketch8.addConstraint(Sketcher.Constraint("Tangent", 0, 1, 1, 2))
sketch8.addConstraint(Sketcher.Constraint("Tangent", 1, 1, 2, 2))
sketch8.addConstraint(Sketcher.Constraint("Tangent", 2, 1, 0, 2))
sketch8.addConstraint(Sketcher.Constraint("Equal", 2, 4))
sketch8.addConstraint(Sketcher.Constraint("Horizontal", 2, 3, 0, 1))
sketch8.addConstraint(Sketcher.Constraint("Diameter", 3, Q("6 mm")))
sketch8.addConstraint(Sketcher.Constraint("Diameter", 4, Q("8 mm")))
sketch8.addConstraint(Sketcher.Constraint("DistanceY", 2, 1, 0, 1, Q("1.535802 mm")))
sketch8.addConstraint(Sketcher.Constraint("DistanceY", 0, 3, -1, 1, Q("4.554851 mm")))
sketch8.addConstraint(Sketcher.Constraint("DistanceX", 4, 3, -1, 1, Q("7.820639 mm")))
sketch8.addConstraint(Sketcher.Constraint("DistanceY", 1, 1, -1, 1, Q("0.698429 mm")))
sketch8.addConstraint(Sketcher.Constraint("DistanceX", 2, 1, -1, 1, Q("16.232121 mm")))
sketch8.addConstraint(Sketcher.Constraint("DistanceX", 1, 3, 3, 3, Q("0.626291 mm")))
sketch8.addConstraint(Sketcher.Constraint("DistanceY", 1, 3, 4, 3, Q("15.225968 mm")))
sketch8.addConstraint(Sketcher.Constraint("DistanceY", 3, 3, 1, 1, Q("3.496119 mm")))
pocket3 = body.newObject("PartDesign::Pocket", "Pocket002")
pocket3.Profile = sketch8
pocket3.Length = 4.5
pocket3.Reversed = True

sketch9 = body.newObject("Sketcher::SketchObject", "Sketch008")
sketch9.Placement = App.Placement(App.Vector(-10.709654, 5.226174, 26.182827), App.Rotation(App.Vector(0.192331359, 0.394131967, 0.898703867), App.Vector(0.394131967, 0.807668641, -0.438555993), App.Vector(-0.898703867, 0.438555993, 0), "ZXY"))
sketch9.addGeometry(Part.LineSegment(App.Vector(-23.5, 4.2, 0), App.Vector(-26.2, -1.2, 0)), False)
sketch9.addGeometry(Part.ArcOfCircle(Part.Circle(App.Vector(-27.4, 2.7, 0), App.Vector(0, 0, 1), 4.1), math.radians(-73), math.radians(21)), False)
sketch9.addConstraint(Sketcher.Constraint("Coincident", 0, 1, 1, 2))
sketch9.addConstraint(Sketcher.Constraint("Coincident", 1, 1, 0, 2))
sketch9.addConstraint(Sketcher.Constraint("Distance", 0, Q("6 mm")))
sketch9.addConstraint(Sketcher.Constraint("Radius", 1, Q("4.111538 mm")))
sketch9.addConstraint(Sketcher.Constraint("DistanceY", -1, 1, 1, 3, Q("2.691558 mm")))
sketch9.addConstraint(Sketcher.Constraint("DistanceY", 1, 1, -1, 1, Q("1.23757 mm")))
sketch9.addConstraint(Sketcher.Constraint("DistanceX", 1, 3, -1, 1, Q("27.388295 mm")))
pocket4 = body.newObject("PartDesign::Pocket", "Pocket003")
pocket4.Profile = sketch9
pocket4.Length = 14.26605
pocket4.Reversed = True

sketch10 = body.newObject("Sketcher::SketchObject", "Sketch009")
sketch10.Placement = App.Placement(App.Vector(-9.277916, 12.659545, 0), App.Rotation(App.Vector(0.806579683, 0.59112538, 0), App.Vector(0, 0, -1), App.Vector(-0.59112538, 0.806579683, 0), "ZXY"))
sketch10.addGeometry(Part.LineSegment(App.Vector(3.1, -3.2, 0), App.Vector(-3.1, -3.2, 0)), False)
sketch10.addGeometry(Part.ArcOfCircle(Part.Circle(App.Vector(0, 0, 0), App.Vector(0, 0, 1), 4.5), math.radians(-135), math.radians(-45)), False)
sketch10.addConstraint(Sketcher.Constraint("Coincident", 0, 1, 1, 2))
sketch10.addConstraint(Sketcher.Constraint("Coincident", 1, 1, 0, 2))
sketch10.addConstraint(Sketcher.Constraint("Horizontal", 0))
sketch10.addConstraint(Sketcher.Constraint("PointOnObject", 1, 3, -2))
sketch10.addConstraint(Sketcher.Constraint("DistanceX", 0, 2, 0, 1, Q("6.3 mm")))
sketch10.addConstraint(Sketcher.Constraint("DistanceY", 0, 1, -1, 1, Q("3.2 mm")))
sketch10.addConstraint(Sketcher.Constraint("Radius", 1, Q("4.466346 mm")))
pocket5 = body.newObject("PartDesign::Pocket", "Pocket004")
pocket5.Profile = sketch10
pocket5.Length = 11.304657
pocket5.Reversed = True
doc.recompute()

mirrored = body.newObject("PartDesign::Mirrored", "Mirrored")
mirrored.Originals = [pocket2, pocket3, pocket4]
mirrored.MirrorPlane = (doc.getObject("YZ_Plane"), [""])
body.Tip = mirrored
doc.recompute()

mirrored2 = body.newObject("PartDesign::Mirrored", "Mirrored001")
mirrored2.Originals = [pocket5]
mirrored2.MirrorPlane = (doc.getObject("YZ_Plane"), [""])
body.Tip = mirrored2

sketch11 = body.newObject("Sketcher::SketchObject", "Sketch010")
sketch11.AttachmentSupport = (doc.getObject("XY_Plane"), [""])
sketch11.MapMode = "FlatFace"
sketch11.addGeometry(Part.LineSegment(App.Vector(-3, 0.6, 0), App.Vector(3, 0.6, 0)), False)
sketch11.addGeometry(Part.LineSegment(App.Vector(3, 0.6, 0), App.Vector(3, -11.5, 0)), False)
sketch11.addGeometry(Part.ArcOfCircle(Part.Circle(App.Vector(0, -15.2, 0), App.Vector(0, 0, 1), 4.8), math.radians(129), math.radians(411)), False)
sketch11.addGeometry(Part.LineSegment(App.Vector(-3, -11.5, 0), App.Vector(-3, 0.6, 0)), False)
sketch11.addConstraint(Sketcher.Constraint("Coincident", 0, 2, 1, 1))
sketch11.addConstraint(Sketcher.Constraint("Coincident", 1, 2, 2, 2))
sketch11.addConstraint(Sketcher.Constraint("Coincident", 2, 1, 3, 1))
sketch11.addConstraint(Sketcher.Constraint("Coincident", 3, 2, 0, 1))
sketch11.addConstraint(Sketcher.Constraint("Horizontal", 0))
sketch11.addConstraint(Sketcher.Constraint("Vertical", 1))
sketch11.addConstraint(Sketcher.Constraint("Vertical", 3))
sketch11.addConstraint(Sketcher.Constraint("Symmetric", 1, 2, 2, 1, -2))
sketch11.addConstraint(Sketcher.Constraint("DistanceX", 0, 1, 0, 2, Q("6 mm")))
sketch11.addConstraint(Sketcher.Constraint("Radius", 2, Q("4.75 mm")))
sketch11.addConstraint(Sketcher.Constraint("DistanceY", 1, 2, 1, 1, Q("12.155438 mm")))
sketch11.addConstraint(Sketcher.Constraint("DistanceY", 2, 3, -1, 1, Q("15.222243 mm")))
pocket6 = body.newObject("PartDesign::Pocket", "Pocket005")
pocket6.Profile = sketch11
pocket6.Length = 16.5
pocket6.Reversed = True

doc.recompute()
